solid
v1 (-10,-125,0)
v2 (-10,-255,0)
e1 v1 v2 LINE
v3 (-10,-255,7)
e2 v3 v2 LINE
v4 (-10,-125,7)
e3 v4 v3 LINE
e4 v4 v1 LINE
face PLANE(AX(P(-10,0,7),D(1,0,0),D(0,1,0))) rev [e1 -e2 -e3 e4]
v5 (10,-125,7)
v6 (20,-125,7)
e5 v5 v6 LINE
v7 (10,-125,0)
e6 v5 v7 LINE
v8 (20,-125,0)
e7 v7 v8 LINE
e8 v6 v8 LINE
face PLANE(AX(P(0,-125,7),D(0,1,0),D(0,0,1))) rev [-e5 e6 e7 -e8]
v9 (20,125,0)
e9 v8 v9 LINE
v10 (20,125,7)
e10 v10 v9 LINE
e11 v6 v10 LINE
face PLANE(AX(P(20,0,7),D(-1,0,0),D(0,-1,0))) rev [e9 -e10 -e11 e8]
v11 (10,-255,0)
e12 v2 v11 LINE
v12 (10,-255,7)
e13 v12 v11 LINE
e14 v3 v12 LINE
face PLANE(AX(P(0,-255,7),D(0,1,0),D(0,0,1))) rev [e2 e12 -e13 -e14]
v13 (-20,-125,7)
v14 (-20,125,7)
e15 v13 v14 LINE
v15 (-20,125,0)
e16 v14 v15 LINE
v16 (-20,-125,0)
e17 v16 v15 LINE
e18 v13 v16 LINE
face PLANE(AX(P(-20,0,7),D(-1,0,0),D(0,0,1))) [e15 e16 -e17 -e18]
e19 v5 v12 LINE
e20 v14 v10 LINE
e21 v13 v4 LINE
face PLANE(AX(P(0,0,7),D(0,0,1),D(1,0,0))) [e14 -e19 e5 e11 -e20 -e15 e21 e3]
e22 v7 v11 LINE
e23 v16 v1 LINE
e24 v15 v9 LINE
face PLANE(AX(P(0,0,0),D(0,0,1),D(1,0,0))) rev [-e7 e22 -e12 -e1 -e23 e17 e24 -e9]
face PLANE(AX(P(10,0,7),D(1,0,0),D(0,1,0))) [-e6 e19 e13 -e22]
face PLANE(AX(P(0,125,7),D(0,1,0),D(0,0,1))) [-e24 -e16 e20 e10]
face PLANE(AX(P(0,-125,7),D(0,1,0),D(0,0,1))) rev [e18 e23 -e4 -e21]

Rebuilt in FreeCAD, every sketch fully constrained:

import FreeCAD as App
import Part
import Sketcher

doc = App.newDocument("Part")
params = doc.addObject("Spreadsheet::Sheet", "Params")
for row, (alias, value) in enumerate([
    ("sketch1_width", "10 mm"),
    ("sketch1_width2", "20 mm"),
    ("sketch1_height", "250 mm"),
    ("sketch1_height2", "130 mm"),
    ("pad1_length", "7 mm"),
], start=1):
    params.set(f"A{row}", alias)
    params.set(f"B{row}", "=" + value)
    params.setAlias(f"B{row}", alias)

body = doc.addObject("PartDesign::Body", "Body")

sketch1 = body.newObject("Sketcher::SketchObject", "Sketch")
sketch1.AttachmentSupport = (doc.getObject("XY_Plane"), [""])
sketch1.MapMode = "FlatFace"
sketch1.addGeometry([
    Part.LineSegment(App.Vector(-20, 125, 0), App.Vector(-20, -125, 0)),
    Part.LineSegment(App.Vector(-20, -125, 0), App.Vector(-10, -125, 0)),
    Part.LineSegment(App.Vector(-10, -125, 0), App.Vector(-10, -255, 0)),
    Part.LineSegment(App.Vector(-10, -255, 0), App.Vector(10, -255, 0)),
    Part.LineSegment(App.Vector(10, -255, 0), App.Vector(10, -125, 0)),
    Part.LineSegment(App.Vector(10, -125, 0), App.Vector(20, -125, 0)),
    Part.LineSegment(App.Vector(20, -125, 0), App.Vector(20, 125, 0)),
    Part.LineSegment(App.Vector(20, 125, 0), App.Vector(-20, 125, 0)),
], False)
sketch1.addConstraint([
    Sketcher.Constraint("Coincident", 0, 2, 1, 1),
    Sketcher.Constraint("Coincident", 1, 2, 2, 1),
    Sketcher.Constraint("Coincident", 2, 2, 3, 1),
    Sketcher.Constraint("Coincident", 3, 2, 4, 1),
    Sketcher.Constraint("Coincident", 4, 2, 5, 1),
    Sketcher.Constraint("Coincident", 5, 2, 6, 1),
    Sketcher.Constraint("Coincident", 6, 2, 7, 1),
    Sketcher.Constraint("Coincident", 7, 2, 0, 1),
    Sketcher.Constraint("Vertical", 0),
    Sketcher.Constraint("Horizontal", 1),
    Sketcher.Constraint("Vertical", 2),
    Sketcher.Constraint("Horizontal", 3),
    Sketcher.Constraint("Vertical", 4),
    Sketcher.Constraint("Horizontal", 5),
    Sketcher.Constraint("Vertical", 6),
    Sketcher.Constraint("Horizontal", 7),
    Sketcher.Constraint("Symmetric", 0, 2, 6, 2, -1, 1),
    Sketcher.Constraint("Symmetric", 1, 2, 4, 2, -2),
    Sketcher.Constraint("DistanceX", 1, 1, 1, 2, 10.0),
    Sketcher.Constraint("DistanceX", 3, 1, 3, 2, 20.0),
    Sketcher.Constraint("DistanceY", 0, 2, 0, 1, 250.0),
    Sketcher.Constraint("DistanceY", 2, 2, 2, 1, 130.0),
])
sketch1.setExpression("Constraints[18]", "Params.sketch1_width")
sketch1.setExpression("Constraints[19]", "Params.sketch1_width2")
sketch1.setExpression("Constraints[20]", "Params.sketch1_height")
sketch1.setExpression("Constraints[21]", "Params.sketch1_height2")
pad1 = body.newObject("PartDesign::Pad", "Pad")
pad1.Profile = sketch1
pad1.setExpression("Length", "Params.pad1_length")

doc.recompute()
